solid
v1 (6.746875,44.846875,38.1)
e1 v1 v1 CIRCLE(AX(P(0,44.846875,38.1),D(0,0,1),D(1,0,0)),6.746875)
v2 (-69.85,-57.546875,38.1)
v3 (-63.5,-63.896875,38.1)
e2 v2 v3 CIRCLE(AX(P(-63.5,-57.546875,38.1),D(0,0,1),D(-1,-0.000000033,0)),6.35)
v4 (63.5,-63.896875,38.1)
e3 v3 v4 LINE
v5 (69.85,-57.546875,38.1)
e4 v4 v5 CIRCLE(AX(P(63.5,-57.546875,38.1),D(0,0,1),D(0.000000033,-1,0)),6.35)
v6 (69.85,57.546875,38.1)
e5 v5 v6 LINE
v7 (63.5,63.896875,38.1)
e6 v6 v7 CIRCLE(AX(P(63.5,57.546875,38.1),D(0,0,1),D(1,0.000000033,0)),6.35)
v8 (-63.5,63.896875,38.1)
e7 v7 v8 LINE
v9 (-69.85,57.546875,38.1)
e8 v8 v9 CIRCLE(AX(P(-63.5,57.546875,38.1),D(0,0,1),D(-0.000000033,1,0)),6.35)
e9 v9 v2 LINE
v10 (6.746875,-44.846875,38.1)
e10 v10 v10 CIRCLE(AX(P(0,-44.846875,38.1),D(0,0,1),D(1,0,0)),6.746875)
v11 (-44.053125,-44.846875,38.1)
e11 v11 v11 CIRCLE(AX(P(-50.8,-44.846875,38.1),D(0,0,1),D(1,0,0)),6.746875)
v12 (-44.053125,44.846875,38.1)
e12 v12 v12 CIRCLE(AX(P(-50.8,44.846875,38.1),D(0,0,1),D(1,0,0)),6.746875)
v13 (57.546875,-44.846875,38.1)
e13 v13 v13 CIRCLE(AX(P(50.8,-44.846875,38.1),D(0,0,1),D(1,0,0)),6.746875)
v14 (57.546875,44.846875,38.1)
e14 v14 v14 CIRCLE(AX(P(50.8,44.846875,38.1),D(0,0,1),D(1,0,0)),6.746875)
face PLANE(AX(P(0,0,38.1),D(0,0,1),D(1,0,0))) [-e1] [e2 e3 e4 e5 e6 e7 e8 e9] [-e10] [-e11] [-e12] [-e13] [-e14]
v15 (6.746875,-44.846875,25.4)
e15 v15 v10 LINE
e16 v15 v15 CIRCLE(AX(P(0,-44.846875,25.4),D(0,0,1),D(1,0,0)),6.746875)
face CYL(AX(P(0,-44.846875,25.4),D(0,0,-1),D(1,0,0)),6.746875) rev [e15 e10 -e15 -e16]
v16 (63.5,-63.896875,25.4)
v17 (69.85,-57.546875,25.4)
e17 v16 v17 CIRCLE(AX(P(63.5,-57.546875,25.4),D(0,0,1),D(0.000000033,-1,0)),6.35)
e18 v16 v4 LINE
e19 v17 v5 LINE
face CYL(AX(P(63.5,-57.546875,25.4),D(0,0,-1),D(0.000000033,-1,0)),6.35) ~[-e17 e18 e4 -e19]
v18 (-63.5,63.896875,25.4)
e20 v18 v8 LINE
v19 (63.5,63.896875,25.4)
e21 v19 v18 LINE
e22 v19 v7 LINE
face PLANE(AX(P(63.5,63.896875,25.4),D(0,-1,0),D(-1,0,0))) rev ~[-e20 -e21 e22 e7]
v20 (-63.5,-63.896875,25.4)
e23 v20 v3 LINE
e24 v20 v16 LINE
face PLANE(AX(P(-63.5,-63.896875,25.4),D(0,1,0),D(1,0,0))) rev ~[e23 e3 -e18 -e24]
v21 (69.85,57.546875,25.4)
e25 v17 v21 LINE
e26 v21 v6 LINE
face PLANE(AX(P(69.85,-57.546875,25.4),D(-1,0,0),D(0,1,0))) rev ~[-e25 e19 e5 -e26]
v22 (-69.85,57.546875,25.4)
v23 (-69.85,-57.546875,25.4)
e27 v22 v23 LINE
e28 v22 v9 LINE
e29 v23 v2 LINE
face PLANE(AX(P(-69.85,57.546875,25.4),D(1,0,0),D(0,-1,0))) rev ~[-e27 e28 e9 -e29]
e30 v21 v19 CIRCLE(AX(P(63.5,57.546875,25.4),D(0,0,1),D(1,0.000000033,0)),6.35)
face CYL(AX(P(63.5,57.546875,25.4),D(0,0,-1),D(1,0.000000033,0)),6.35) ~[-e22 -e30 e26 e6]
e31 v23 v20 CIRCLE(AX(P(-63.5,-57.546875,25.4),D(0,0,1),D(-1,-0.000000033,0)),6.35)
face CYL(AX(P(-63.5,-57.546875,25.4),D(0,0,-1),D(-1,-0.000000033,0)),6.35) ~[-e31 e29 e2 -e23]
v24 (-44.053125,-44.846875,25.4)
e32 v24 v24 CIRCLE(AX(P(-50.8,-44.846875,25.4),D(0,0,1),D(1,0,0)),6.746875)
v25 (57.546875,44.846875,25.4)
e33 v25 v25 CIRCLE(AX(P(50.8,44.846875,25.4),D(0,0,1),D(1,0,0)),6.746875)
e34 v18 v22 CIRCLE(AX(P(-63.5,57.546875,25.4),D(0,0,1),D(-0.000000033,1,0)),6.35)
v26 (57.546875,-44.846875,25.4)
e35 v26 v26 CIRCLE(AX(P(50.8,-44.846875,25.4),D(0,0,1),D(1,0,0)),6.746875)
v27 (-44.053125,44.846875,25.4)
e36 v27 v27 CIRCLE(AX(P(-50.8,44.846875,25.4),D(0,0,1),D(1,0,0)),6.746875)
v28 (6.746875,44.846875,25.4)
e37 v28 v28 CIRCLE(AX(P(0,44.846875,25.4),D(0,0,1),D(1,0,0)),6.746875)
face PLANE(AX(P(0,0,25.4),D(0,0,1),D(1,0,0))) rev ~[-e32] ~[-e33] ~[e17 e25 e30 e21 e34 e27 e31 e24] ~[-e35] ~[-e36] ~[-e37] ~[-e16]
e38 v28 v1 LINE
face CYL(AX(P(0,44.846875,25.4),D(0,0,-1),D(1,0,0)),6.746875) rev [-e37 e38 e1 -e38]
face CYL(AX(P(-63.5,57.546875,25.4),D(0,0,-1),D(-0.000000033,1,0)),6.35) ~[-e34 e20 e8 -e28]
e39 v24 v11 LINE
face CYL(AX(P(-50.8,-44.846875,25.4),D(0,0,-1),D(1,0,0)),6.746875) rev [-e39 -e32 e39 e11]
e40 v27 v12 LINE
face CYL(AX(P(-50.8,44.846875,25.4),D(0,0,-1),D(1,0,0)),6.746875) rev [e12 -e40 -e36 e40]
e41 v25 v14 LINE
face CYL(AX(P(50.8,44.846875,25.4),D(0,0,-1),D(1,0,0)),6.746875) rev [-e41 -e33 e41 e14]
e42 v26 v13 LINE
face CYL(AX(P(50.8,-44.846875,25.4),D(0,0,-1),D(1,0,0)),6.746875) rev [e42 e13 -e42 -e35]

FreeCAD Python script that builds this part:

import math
import FreeCAD as App
import Part
import Sketcher

V = App.Vector
Q = App.Units.Quantity

doc = App.newDocument("Part")
body = doc.addObject("PartDesign::Body", "Body")

sketch1 = body.newObject("Sketcher::SketchObject", "Sketch")
sketch1.AttachmentSupport = (doc.getObject("XY_Plane"), [""])
sketch1.MapMode = "FlatFace"
sketch1.AttachmentOffset = App.Placement(V(0, 0, 1 * 25.4), App.Rotation())
sketch1.addGeometry(Part.LineSegment(V(64, 64, 0), V(-64, 64, 0)), False)
sketch1.addGeometry(Part.ArcOfCircle(Part.Circle(V(-63, 58, 0), V(0, 0, 1), 6), math.radians(90), math.radians(180)), False)
sketch1.addGeometry(Part.LineSegment(V(-70, 58, 0), V(-70, -58, 0)), False)
sketch1.addGeometry(Part.ArcOfCircle(Part.Circle(V(-63, -58, 0), V(0, 0, 1), 6), math.radians(-180), math.radians(-90)), False)
sketch1.addGeometry(Part.LineSegment(V(-64, -64, 0), V(64, -64, 0)), False)
sketch1.addGeometry(Part.ArcOfCircle(Part.Circle(V(63, -58, 0), V(0, 0, 1), 6), math.radians(-90), math.radians(0)), False)
sketch1.addGeometry(Part.LineSegment(V(70, -58, 0), V(70, 58, 0)), False)
sketch1.addGeometry(Part.ArcOfCircle(Part.Circle(V(63, 58, 0), V(0, 0, 1), 6), math.radians(0), math.radians(90)), False)
sketch1.addGeometry(Part.Circle(V(-51, -45, 0), V(0, 0, 1), 7), False)
sketch1.addGeometry(Part.Circle(V(0, -45, 0), V(0, 0, 1), 7), False)
sketch1.addGeometry(Part.Circle(V(51, -45, 0), V(0, 0, 1), 7), False)
sketch1.addGeometry(Part.Circle(V(-51, 45, 0), V(0, 0, 1), 7), False)
sketch1.addGeometry(Part.Circle(V(0, 45, 0), V(0, 0, 1), 7), False)
sketch1.addGeometry(Part.Circle(V(51, 45, 0), V(0, 0, 1), 7), False)
sketch1.addConstraint(Sketcher.Constraint("Tangent", 0, 2, 1, 1))
sketch1.addConstraint(Sketcher.Constraint("Tangent", 1, 2, 2, 1))
sketch1.addConstraint(Sketcher.Constraint("Tangent", 2, 2, 3, 1))
sketch1.addConstraint(Sketcher.Constraint("Tangent", 3, 2, 4, 1))
sketch1.addConstraint(Sketcher.Constraint("Tangent", 4, 2, 5, 1))
sketch1.addConstraint(Sketcher.Constraint("Tangent", 5, 2, 6, 1))
sketch1.addConstraint(Sketcher.Constraint("Tangent", 6, 2, 7, 1))
sketch1.addConstraint(Sketcher.Constraint("Tangent", 7, 2, 0, 1))
sketch1.addConstraint(Sketcher.Constraint("Horizontal", 0))
sketch1.addConstraint(Sketcher.Constraint("Vertical", 2))
sketch1.addConstraint(Sketcher.Constraint("Horizontal", 4))
sketch1.addConstraint(Sketcher.Constraint("Vertical", 6))
sketch1.addConstraint(Sketcher.Constraint("Equal", 1, 3))
sketch1.addConstraint(Sketcher.Constraint("Equal", 3, 5))
sketch1.addConstraint(Sketcher.Constraint("Equal", 5, 7))
sketch1.addConstraint(Sketcher.Constraint("Equal", 8, 9))
sketch1.addConstraint(Sketcher.Constraint("Equal", 9, 10))
sketch1.addConstraint(Sketcher.Constraint("Equal", 10, 11))
sketch1.addConstraint(Sketcher.Constraint("Equal", 11, 12))
sketch1.addConstraint(Sketcher.Constraint("Equal", 12, 13))
sketch1.addConstraint(Sketcher.Constraint("Symmetric", 1, 3, 5, 3, -1, 1))
sketch1.addConstraint(Sketcher.Constraint("Symmetric", 10, 3, 11, 3, -1, 1))
sketch1.addConstraint(Sketcher.Constraint("Symmetric", 9, 3, 12, 3, -1, 1))
sketch1.addConstraint(Sketcher.Constraint("Symmetric", 8, 3, 13, 3, -1, 1))
sketch1.addConstraint(Sketcher.Constraint("Symmetric", 8, 3, 10, 3, -2))
sketch1.addConstraint(Sketcher.Constraint("PointOnObject", 9, 3, -2))
sketch1.addConstraint(Sketcher.Constraint("Horizontal", 8, 3, 9, 3))
sketch1.addConstraint(Sketcher.Constraint("DistanceX", 0, 2, 0, 1, Q("5 in")))
sketch1.addConstraint(Sketcher.Constraint("Radius", 1, Q("0.25 in")))
sketch1.addConstraint(Sketcher.Constraint("Diameter", 8, Q("0.53125 in")))
sketch1.addConstraint(Sketcher.Constraint("DistanceX", 8, 3, -1, 1, Q("2 in")))
sketch1.addConstraint(Sketcher.Constraint("DistanceY", 3, 3, 8, 3, Q("0.5 in")))
sketch1.addConstraint(Sketcher.Constraint("DistanceY", 2, 2, 2, 1, Q("4.53125 in")))
pad1 = body.newObject("PartDesign::Pad", "Pad")
pad1.Profile = sketch1
pad1.Length = Q("0.5 in")

doc.recompute()
